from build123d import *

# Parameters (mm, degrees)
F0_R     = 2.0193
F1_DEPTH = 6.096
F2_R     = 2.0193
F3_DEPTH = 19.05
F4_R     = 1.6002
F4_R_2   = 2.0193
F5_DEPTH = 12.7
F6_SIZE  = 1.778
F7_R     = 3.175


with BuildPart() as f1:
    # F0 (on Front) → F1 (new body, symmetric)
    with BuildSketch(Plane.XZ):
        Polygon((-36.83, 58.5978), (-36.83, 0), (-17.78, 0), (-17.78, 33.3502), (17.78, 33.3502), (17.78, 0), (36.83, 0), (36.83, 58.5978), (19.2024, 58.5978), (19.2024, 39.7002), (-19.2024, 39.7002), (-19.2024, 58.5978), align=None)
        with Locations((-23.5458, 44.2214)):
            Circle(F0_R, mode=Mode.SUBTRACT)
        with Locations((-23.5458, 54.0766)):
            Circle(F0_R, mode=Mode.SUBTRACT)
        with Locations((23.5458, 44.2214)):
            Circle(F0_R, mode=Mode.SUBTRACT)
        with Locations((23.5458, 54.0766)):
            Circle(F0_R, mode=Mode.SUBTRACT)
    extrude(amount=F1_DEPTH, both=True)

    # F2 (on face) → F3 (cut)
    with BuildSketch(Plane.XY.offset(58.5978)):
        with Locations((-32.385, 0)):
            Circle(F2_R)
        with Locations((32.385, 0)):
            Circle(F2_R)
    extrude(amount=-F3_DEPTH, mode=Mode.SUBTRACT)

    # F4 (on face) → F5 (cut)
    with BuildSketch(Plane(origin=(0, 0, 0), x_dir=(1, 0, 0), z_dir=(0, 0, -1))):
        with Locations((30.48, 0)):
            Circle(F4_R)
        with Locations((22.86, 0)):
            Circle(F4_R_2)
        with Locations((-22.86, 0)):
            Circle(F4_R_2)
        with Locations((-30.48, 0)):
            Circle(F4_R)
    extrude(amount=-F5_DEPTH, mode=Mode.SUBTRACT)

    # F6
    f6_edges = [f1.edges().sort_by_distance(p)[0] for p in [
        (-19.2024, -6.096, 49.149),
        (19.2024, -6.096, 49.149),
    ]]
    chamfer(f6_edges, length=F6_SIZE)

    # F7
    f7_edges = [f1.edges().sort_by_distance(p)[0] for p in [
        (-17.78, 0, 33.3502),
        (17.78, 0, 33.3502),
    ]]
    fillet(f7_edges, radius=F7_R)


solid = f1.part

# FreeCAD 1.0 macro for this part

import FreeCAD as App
import Part
import Sketcher
Q = App.Units.Quantity


def edges_at(feature, points):
    """Names of the edges that pass closest to the given points."""
    edges = feature.Shape.Edges
    near = lambda p: min(range(len(edges)), key=lambda i: edges[i].distToShape(Part.Vertex(*p))[0])
    return sorted({f"Edge{near(p) + 1}" for p in points})

doc = App.newDocument("Part")
body = doc.addObject("PartDesign::Body", "Body")

sketch1 = body.newObject("Sketcher::SketchObject", "Sketch")
sketch1.AttachmentSupport = (doc.getObject("XZ_Plane"), [""])
sketch1.MapMode = "FlatFace"
sketch1.addGeometry([
    Part.LineSegment(App.Vector(-36.8, 58.6, 0), App.Vector(-36.8, 0, 0)),
    Part.LineSegment(App.Vector(-36.8, 0, 0), App.Vector(-17.8, 0, 0)),
    Part.LineSegment(App.Vector(-17.8, 0, 0), App.Vector(-17.8, 33.4, 0)),
    Part.LineSegment(App.Vector(-17.8, 33.4, 0), App.Vector(17.8, 33.4, 0)),
    Part.LineSegment(App.Vector(17.8, 33.4, 0), App.Vector(17.8, 0, 0)),
    Part.LineSegment(App.Vector(17.8, 0, 0), App.Vector(36.8, 0, 0)),
    Part.LineSegment(App.Vector(36.8, 0, 0), App.Vector(36.8, 58.6, 0)),
    Part.LineSegment(App.Vector(36.8, 58.6, 0), App.Vector(19.2, 58.6, 0)),
    Part.LineSegment(App.Vector(19.2, 58.6, 0), App.Vector(19.2, 39.7, 0)),
    Part.LineSegment(App.Vector(19.2, 39.7, 0), App.Vector(-19.2, 39.7, 0)),
    Part.LineSegment(App.Vector(-19.2, 39.7, 0), App.Vector(-19.2, 58.6, 0)),
    Part.LineSegment(App.Vector(-19.2, 58.6, 0), App.Vector(-36.8, 58.6, 0)),
    Part.Circle(App.Vector(-23.5, 44.2, 0), App.Vector(0, 0, 1), 2),
    Part.Circle(App.Vector(23.5, 44.2, 0), App.Vector(0, 0, 1), 2),
    Part.Circle(App.Vector(-23.5, 54.1, 0), App.Vector(0, 0, 1), 2),
    Part.Circle(App.Vector(23.5, 54.1, 0), App.Vector(0, 0, 1), 2),
], False)
sketch1.addConstraint([
    Sketcher.Constraint("Coincident", 0, 2, 1, 1),
    Sketcher.Constraint("Coincident", 1, 2, 2, 1),
    Sketcher.Constraint("Coincident", 2, 2, 3, 1),
    Sketcher.Constraint("Coincident", 3, 2, 4, 1),
    Sketcher.Constraint("Coincident", 4, 2, 5, 1),
    Sketcher.Constraint("Coincident", 5, 2, 6, 1),
    Sketcher.Constraint("Coincident", 6, 2, 7, 1),
    Sketcher.Constraint("Coincident", 7, 2, 8, 1),
    Sketcher.Constraint("Coincident", 8, 2, 9, 1),
    Sketcher.Constraint("Coincident", 9, 2, 10, 1),
    Sketcher.Constraint("Coincident", 10, 2, 11, 1),
    Sketcher.Constraint("Coincident", 11, 2, 0, 1),
    Sketcher.Constraint("Vertical", 0),
    Sketcher.Constraint("Horizontal", 1),
    Sketcher.Constraint("Vertical", 2),
    Sketcher.Constraint("Horizontal", 3),
    Sketcher.Constraint("Vertical", 4),
    Sketcher.Constraint("Horizontal", 5),
    Sketcher.Constraint("Vertical", 6),
    Sketcher.Constraint("Horizontal", 7),
    Sketcher.Constraint("Vertical", 8),
    Sketcher.Constraint("Horizontal", 9),
    Sketcher.Constraint("Vertical", 10),
    Sketcher.Constraint("Horizontal", 11),
    Sketcher.Constraint("Equal", 12, 13),
    Sketcher.Constraint("Equal", 13, 14),
    Sketcher.Constraint("Equal", 14, 15),
    Sketcher.Constraint("Symmetric", 1, 2, 4, 2, -1, 1),
    Sketcher.Constraint("Symmetric", 12, 3, 13, 3, -2),
    Sketcher.Constraint("Symmetric", 14, 3, 15, 3, -2),
    Sketcher.Constraint("Symmetric", 0, 2, 5, 2, -2),
    Sketcher.Constraint("Symmetric", 7, 2, 10, 2, -2),
    Sketcher.Constraint("Vertical", 12, 3, 14, 3),
    Sketcher.Constraint("Diameter", 12, Q("0.159 in")),
    Sketcher.Constraint("DistanceX", 3, 1, 3, 2, Q("1.4 in")),
    Sketcher.Constraint("DistanceX", 1, 1, 1, 2, Q("0.75 in")),
    Sketcher.Constraint("DistanceX", 7, 2, 7, 1, Q("0.694 in")),
    Sketcher.Constraint("DistanceY", 0, 2, 0, 1, Q("2.307 in")),
    Sketcher.Constraint("DistanceY", 2, 1, 2, 2, Q("1.313 in")),
    Sketcher.Constraint("DistanceY", 8, 2, 8, 1, Q("0.744 in")),
    Sketcher.Constraint("DistanceX", 12, 3, -1, 1, Q("0.927 in")),
    Sketcher.Constraint("DistanceY", -1, 1, 12, 3, Q("1.741 in")),
    Sketcher.Constraint("DistanceY", -1, 1, 14, 3, Q("2.129 in")),
])
pad1 = body.newObject("PartDesign::Pad", "Pad")
pad1.Profile = sketch1
pad1.Length = Q("0.48 in")
pad1.Midplane = True

sketch2 = body.newObject("Sketcher::SketchObject", "Sketch001")
sketch2.AttachmentSupport = (doc.getObject("XY_Plane"), [""])
sketch2.MapMode = "FlatFace"
sketch2.AttachmentOffset = App.Placement(App.Vector(0, 0, 2.307 * 25.4), App.Rotation())
sketch2.addGeometry([
    Part.Circle(App.Vector(-32.4, 0, 0), App.Vector(0, 0, 1), 2),
    Part.Circle(App.Vector(32.4, 0, 0), App.Vector(0, 0, 1), 2),
], False)
sketch2.addConstraint([
    Sketcher.Constraint("Equal", 0, 1),
    Sketcher.Constraint("Symmetric", 0, 3, 1, 3, -1, 1),
    Sketcher.Constraint("PointOnObject", 0, 3, -1),
    Sketcher.Constraint("Diameter", 0, Q("0.159 in")),
    Sketcher.Constraint("DistanceX", 0, 3, 1, 3, Q("2.55 in")),
])
pocket1 = body.newObject("PartDesign::Pocket", "Pocket")
pocket1.Profile = sketch2
pocket1.Length = Q("0.75 in")

sketch3 = body.newObject("Sketcher::SketchObject", "Sketch002")
sketch3.AttachmentSupport = (doc.getObject("XY_Plane"), [""])
sketch3.MapMode = "FlatFace"
sketch3.addGeometry([
    Part.Circle(App.Vector(30.5, 0, 0), App.Vector(0, 0, 1), 1.6),
    Part.Circle(App.Vector(22.9, 0, 0), App.Vector(0, 0, 1), 2),
    Part.Circle(App.Vector(-22.9, 0, 0), App.Vector(0, 0, 1), 2),
    Part.Circle(App.Vector(-30.5, 0, 0), App.Vector(0, 0, 1), 1.6),
], False)
sketch3.addConstraint([
    Sketcher.Constraint("Equal", 1, 2),
    Sketcher.Constraint("Equal", 0, 3),
    Sketcher.Constraint("Symmetric", 1, 3, 2, 3, -1, 1),
    Sketcher.Constraint("Symmetric", 0, 3, 3, 3, -1, 1),
    Sketcher.Constraint("PointOnObject", 0, 3, -1),
    Sketcher.Constraint("PointOnObject", 1, 3, -1),
    Sketcher.Constraint("Diameter", 0, Q("0.126 in")),
    Sketcher.Constraint("Diameter", 1, Q("0.159 in")),
    Sketcher.Constraint("DistanceX", -1, 1, 0, 3, Q("1.2 in")),
    Sketcher.Constraint("DistanceX", -1, 1, 1, 3, Q("0.9 in")),
])
pocket2 = body.newObject("PartDesign::Pocket", "Pocket001")
pocket2.Profile = sketch3
pocket2.Length = Q("0.5 in")
pocket2.Reversed = True
doc.recompute()

chamfer = body.newObject("PartDesign::Chamfer", "Chamfer")
chamfer.Base = (pocket2, edges_at(pocket2, [(-19.202, -6.096, 49.149), (19.202, -6.096, 49.149)]))
chamfer.Size = Q("0.07 in")
doc.recompute()

fillet = body.newObject("PartDesign::Fillet", "Fillet")
fillet.Base = (chamfer, edges_at(chamfer, [(-17.78, 0, 33.35), (17.78, 0, 33.35)]))
fillet.Radius = Q("0.125 in")

doc.recompute()
